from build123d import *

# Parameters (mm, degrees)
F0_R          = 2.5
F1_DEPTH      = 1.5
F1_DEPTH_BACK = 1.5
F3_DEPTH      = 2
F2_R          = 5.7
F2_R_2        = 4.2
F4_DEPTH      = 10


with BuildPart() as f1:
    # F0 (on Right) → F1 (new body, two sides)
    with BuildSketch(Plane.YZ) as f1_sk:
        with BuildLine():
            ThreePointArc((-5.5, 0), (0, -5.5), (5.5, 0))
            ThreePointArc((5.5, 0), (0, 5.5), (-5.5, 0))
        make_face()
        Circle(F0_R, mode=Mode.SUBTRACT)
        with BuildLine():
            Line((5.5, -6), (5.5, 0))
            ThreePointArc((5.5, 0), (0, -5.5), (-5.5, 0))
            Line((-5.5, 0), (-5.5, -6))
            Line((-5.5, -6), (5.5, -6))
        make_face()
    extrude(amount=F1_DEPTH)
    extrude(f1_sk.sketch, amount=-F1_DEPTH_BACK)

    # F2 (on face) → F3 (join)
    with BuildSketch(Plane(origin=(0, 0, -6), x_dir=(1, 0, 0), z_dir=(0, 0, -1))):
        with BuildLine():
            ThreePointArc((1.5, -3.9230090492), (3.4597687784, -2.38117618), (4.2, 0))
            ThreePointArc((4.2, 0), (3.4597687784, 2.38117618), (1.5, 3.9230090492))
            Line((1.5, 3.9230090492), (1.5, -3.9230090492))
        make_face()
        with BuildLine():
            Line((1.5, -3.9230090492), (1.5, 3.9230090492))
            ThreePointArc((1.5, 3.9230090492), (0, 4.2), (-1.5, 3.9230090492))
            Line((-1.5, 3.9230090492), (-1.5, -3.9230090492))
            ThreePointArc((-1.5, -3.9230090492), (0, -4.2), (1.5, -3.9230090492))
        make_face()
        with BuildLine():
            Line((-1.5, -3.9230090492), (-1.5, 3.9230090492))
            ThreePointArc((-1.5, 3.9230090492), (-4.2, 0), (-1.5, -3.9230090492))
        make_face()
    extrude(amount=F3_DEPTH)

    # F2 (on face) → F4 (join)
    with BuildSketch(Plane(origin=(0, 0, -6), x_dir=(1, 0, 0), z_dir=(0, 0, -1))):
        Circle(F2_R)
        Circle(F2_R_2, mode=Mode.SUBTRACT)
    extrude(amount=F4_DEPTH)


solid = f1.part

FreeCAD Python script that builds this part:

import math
import FreeCAD as App
import Part
import Sketcher

doc = App.newDocument("Part")
body = doc.addObject("PartDesign::Body", "Body")

# Sketch on YZ plane
sketch1 = body.newObject("Sketcher::SketchObject", "Sketch")
sketch1.AttachmentSupport = (doc.getObject("YZ_Plane"), [""])
sketch1.MapMode = "FlatFace"
sketch1.addGeometry([
    Part.ArcOfCircle(Part.Circle(App.Vector(0, 0, 0), App.Vector(0, 0, 1), 5.5), math.radians(0), math.radians(180)),  # 0
    Part.LineSegment(App.Vector(-5.5, 0, 0), App.Vector(-5.5, -6, 0)),  # 1
    Part.LineSegment(App.Vector(-5.5, -6, 0), App.Vector(5.5, -6, 0)),  # 2
    Part.LineSegment(App.Vector(5.5, -6, 0), App.Vector(5.5, 0, 0)),  # 3
    Part.Circle(App.Vector(0, 0, 0), App.Vector(0, 0, 1), 2.5),  # 4
], False)
sketch1.addConstraint([
    Sketcher.Constraint("Tangent", 0, 2, 1, 1),
    Sketcher.Constraint("Coincident", 1, 2, 2, 1),
    Sketcher.Constraint("Coincident", 2, 2, 3, 1),
    Sketcher.Constraint("Tangent", 3, 2, 0, 1),
    Sketcher.Constraint("Vertical", 1),
    Sketcher.Constraint("Horizontal", 2),
    Sketcher.Constraint("Vertical", 3),
    Sketcher.Constraint("Coincident", 0, 3, -1, 1),
    Sketcher.Constraint("Coincident", 4, 3, -1, 1),
    Sketcher.Constraint("Diameter", 4, 5.0),
    Sketcher.Constraint("Radius", 0, 5.5),
    Sketcher.Constraint("DistanceY", 1, 2, 1, 1, 6.0),
])
pad1 = body.newObject("PartDesign::Pad", "Pad")
pad1.Profile = sketch1
pad1.Type = "TwoLengths"
pad1.Length = 1.5
pad1.Length2 = 1.5

# Sketch on XY plane
sketch2 = body.newObject("Sketcher::SketchObject", "Sketch001")
sketch2.AttachmentSupport = (doc.getObject("XY_Plane"), [""])
sketch2.MapMode = "FlatFace"
sketch2.AttachmentOffset = App.Placement(App.Vector(0, 0, -6), App.Rotation())
sketch2.addGeometry([
    Part.ArcOfCircle(Part.Circle(App.Vector(0, 0, 0), App.Vector(0, 0, 1), 4.2), math.radians(0), math.radians(69)),  # 0
    Part.ArcOfCircle(Part.Circle(App.Vector(0, 0, 0), App.Vector(0, 0, 1), 4.2), math.radians(-69), math.radians(0)),  # 1
    Part.ArcOfCircle(Part.Circle(App.Vector(0, 0, 0), App.Vector(0, 0, 1), 4.2), math.radians(-111), math.radians(-69)),  # 2
    Part.ArcOfCircle(Part.Circle(App.Vector(0, 0, 0), App.Vector(0, 0, 1), 4.2), math.radians(111), math.radians(249)),  # 3
    Part.ArcOfCircle(Part.Circle(App.Vector(0, 0, 0), App.Vector(0, 0, 1), 4.2), math.radians(69), math.radians(111)),  # 4
], False)
sketch2.addConstraint([
    Sketcher.Constraint("Tangent", 0, 1, 1, 2),
    Sketcher.Constraint("Tangent", 1, 1, 2, 2),
    Sketcher.Constraint("Tangent", 2, 1, 3, 2),
    Sketcher.Constraint("Tangent", 3, 1, 4, 2),
    Sketcher.Constraint("Tangent", 4, 1, 0, 2),
    Sketcher.Constraint("Coincident", 0, 3, -1, 1),
    Sketcher.Constraint("Coincident", 2, 3, -1, 1),
    Sketcher.Constraint("PointOnObject", 0, 1, -1),
    Sketcher.Constraint("Horizontal", 1, 1, 2, 1),
    Sketcher.Constraint("Horizontal", 3, 1, 4, 1),
    Sketcher.Constraint("Vertical", 2, 1, 3, 1),
    Sketcher.Constraint("Radius", 0, 4.2),
    Sketcher.Constraint("DistanceX", 2, 1, 1, 1, 3.0),
])
pad2 = body.newObject("PartDesign::Pad", "Pad001")
pad2.Profile = sketch2
pad2.Length = 2
pad2.Reversed = True

# Sketch on XY plane
sketch3 = body.newObject("Sketcher::SketchObject", "Sketch002")
sketch3.AttachmentSupport = (doc.getObject("XY_Plane"), [""])
sketch3.MapMode = "FlatFace"
sketch3.AttachmentOffset = App.Placement(App.Vector(0, 0, -6), App.Rotation())
sketch3.addGeometry([
    Part.Circle(App.Vector(0, 0, 0), App.Vector(0, 0, 1), 5.7),
    Part.Circle(App.Vector(0, 0, 0), App.Vector(0, 0, 1), 4.2),
], False)
sketch3.addConstraint([
    Sketcher.Constraint("Coincident", 0, 3, -1, 1),
    Sketcher.Constraint("Coincident", 1, 3, -1, 1),
    Sketcher.Constraint("Diameter", 0, 11.4),
    Sketcher.Constraint("Diameter", 1, 8.4),
])
pad3 = body.newObject("PartDesign::Pad", "Pad002")
pad3.Profile = sketch3
pad3.Length = 10
pad3.Reversed = True

doc.recompute()
